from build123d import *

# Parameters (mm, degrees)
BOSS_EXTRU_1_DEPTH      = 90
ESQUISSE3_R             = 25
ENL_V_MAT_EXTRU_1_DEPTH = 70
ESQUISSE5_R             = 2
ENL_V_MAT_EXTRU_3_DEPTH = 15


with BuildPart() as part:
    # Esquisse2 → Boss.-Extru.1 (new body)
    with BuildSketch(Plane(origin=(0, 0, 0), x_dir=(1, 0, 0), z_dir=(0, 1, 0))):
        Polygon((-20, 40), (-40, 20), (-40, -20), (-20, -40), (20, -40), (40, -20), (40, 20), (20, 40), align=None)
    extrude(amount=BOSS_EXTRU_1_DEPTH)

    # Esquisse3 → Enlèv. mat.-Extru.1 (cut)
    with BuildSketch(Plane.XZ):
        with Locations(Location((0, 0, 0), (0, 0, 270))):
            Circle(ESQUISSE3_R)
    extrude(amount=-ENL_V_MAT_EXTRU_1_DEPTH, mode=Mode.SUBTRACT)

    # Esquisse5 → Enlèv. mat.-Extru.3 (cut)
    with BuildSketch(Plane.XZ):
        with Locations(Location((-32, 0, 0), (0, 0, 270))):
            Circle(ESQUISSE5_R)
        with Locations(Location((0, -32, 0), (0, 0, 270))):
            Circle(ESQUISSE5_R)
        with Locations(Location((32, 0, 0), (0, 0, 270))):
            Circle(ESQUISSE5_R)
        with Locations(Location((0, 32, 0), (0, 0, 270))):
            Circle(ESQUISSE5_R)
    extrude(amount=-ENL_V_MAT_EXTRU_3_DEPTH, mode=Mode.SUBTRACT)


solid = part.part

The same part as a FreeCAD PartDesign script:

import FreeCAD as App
import Part
import Sketcher

doc = App.newDocument("Part")
body = doc.addObject("PartDesign::Body", "Body")

# Sketch on XZ plane
sketch1 = doc.addObject("Sketcher::SketchObject", "Sketch")
body.addObject(sketch1)
sketch1.AttachmentSupport = (doc.XZ_Plane, [""])
sketch1.MapMode = "FlatFace"
sketch1.addGeometry(Part.LineSegment(App.Vector(-20, -40, 0), App.Vector(-40, -20, 0)), False)
sketch1.addGeometry(Part.LineSegment(App.Vector(-40, -20, 0), App.Vector(-40, 20, 0)), False)
sketch1.addGeometry(Part.LineSegment(App.Vector(-40, 20, 0), App.Vector(-20, 40, 0)), False)
sketch1.addGeometry(Part.LineSegment(App.Vector(-20, 40, 0), App.Vector(20, 40, 0)), False)
sketch1.addGeometry(Part.LineSegment(App.Vector(20, 40, 0), App.Vector(40, 20, 0)), False)
sketch1.addGeometry(Part.LineSegment(App.Vector(40, 20, 0), App.Vector(40, -20, 0)), False)
sketch1.addGeometry(Part.LineSegment(App.Vector(40, -20, 0), App.Vector(20, -40, 0)), False)
sketch1.addGeometry(Part.LineSegment(App.Vector(20, -40, 0), App.Vector(-20, -40, 0)), False)
sketch1.addConstraint(Sketcher.Constraint("Coincident", 0, 2, 1, 1))
sketch1.addConstraint(Sketcher.Constraint("Coincident", 1, 2, 2, 1))
sketch1.addConstraint(Sketcher.Constraint("Coincident", 2, 2, 3, 1))
sketch1.addConstraint(Sketcher.Constraint("Coincident", 3, 2, 4, 1))
sketch1.addConstraint(Sketcher.Constraint("Coincident", 4, 2, 5, 1))
sketch1.addConstraint(Sketcher.Constraint("Coincident", 5, 2, 6, 1))
sketch1.addConstraint(Sketcher.Constraint("Coincident", 6, 2, 7, 1))
sketch1.addConstraint(Sketcher.Constraint("Coincident", 7, 2, 0, 1))
sketch1.addConstraint(Sketcher.Constraint("Vertical", 1))
sketch1.addConstraint(Sketcher.Constraint("Horizontal", 3))
sketch1.addConstraint(Sketcher.Constraint("Vertical", 5))
sketch1.addConstraint(Sketcher.Constraint("Horizontal", 7))
sketch1.addConstraint(Sketcher.Constraint("Symmetric", 0, 2, 4, 2, -1, 1))
sketch1.addConstraint(Sketcher.Constraint("Symmetric", 2, 2, 6, 2, -1, 1))
sketch1.addConstraint(Sketcher.Constraint("Perpendicular", 0, 2))
sketch1.addConstraint(Sketcher.Constraint("Perpendicular", 2, 4))
sketch1.addConstraint(Sketcher.Constraint("Perpendicular", 4, 6))
sketch1.addConstraint(Sketcher.Constraint("Horizontal", 1, 2, 4, 2))
sketch1.addConstraint(Sketcher.Constraint("Vertical", 3, 2, 6, 2))
sketch1.addConstraint(Sketcher.Constraint("Equal", 7, 1))
sketch1.addConstraint(Sketcher.Constraint("DistanceX", 3, 1, 3, 2, 40.0))
sketch1.addConstraint(Sketcher.Constraint("DistanceX", 0, 2, -1, 1, 40.0))
pad1 = doc.addObject("PartDesign::Pad", "Pad")
body.addObject(pad1)
pad1.Profile = sketch1
pad1.Length = 90
pad1.Reversed = True

# Sketch on XZ plane
sketch2 = doc.addObject("Sketcher::SketchObject", "Sketch001")
body.addObject(sketch2)
sketch2.AttachmentSupport = (doc.XZ_Plane, [""])
sketch2.MapMode = "FlatFace"
sketch2.addGeometry(Part.Circle(App.Vector(0, 0, 0), App.Vector(0, 0, 1), 25), False)
sketch2.addConstraint(Sketcher.Constraint("Coincident", 0, 3, -1, 1))
sketch2.addConstraint(Sketcher.Constraint("Diameter", 0, 50.0))
pocket1 = doc.addObject("PartDesign::Pocket", "Pocket")
body.addObject(pocket1)
pocket1.Profile = sketch2
pocket1.Length = 70

# Sketch on XZ plane
sketch3 = doc.addObject("Sketcher::SketchObject", "Sketch002")
body.addObject(sketch3)
sketch3.AttachmentSupport = (doc.XZ_Plane, [""])
sketch3.MapMode = "FlatFace"
sketch3.addGeometry(Part.Circle(App.Vector(-32, 0, 0), App.Vector(0, 0, 1), 2), False)
sketch3.addGeometry(Part.Circle(App.Vector(0, -32, 0), App.Vector(0, 0, 1), 2), False)
sketch3.addGeometry(Part.Circle(App.Vector(32, 0, 0), App.Vector(0, 0, 1), 2), False)
sketch3.addGeometry(Part.Circle(App.Vector(0, 32, 0), App.Vector(0, 0, 1), 2), False)
sketch3.addConstraint(Sketcher.Constraint("Equal", 0, 1))
sketch3.addConstraint(Sketcher.Constraint("Equal", 1, 2))
sketch3.addConstraint(Sketcher.Constraint("Equal", 2, 3))
sketch3.addConstraint(Sketcher.Constraint("Symmetric", 0, 3, 2, 3, -1, 1))
sketch3.addConstraint(Sketcher.Constraint("Symmetric", 1, 3, 3, 3, -1, 1))
sketch3.addConstraint(Sketcher.Constraint("PointOnObject", 0, 3, -1))
sketch3.addConstraint(Sketcher.Constraint("PointOnObject", 1, 3, -2))
sketch3.addConstraint(Sketcher.Constraint("Diameter", 0, 4.0))
sketch3.addConstraint(Sketcher.Constraint("DistanceX", 0, 3, -1, 1, 32.0))
sketch3.addConstraint(Sketcher.Constraint("DistanceY", 1, 3, -1, 1, 32.0))
pocket2 = doc.addObject("PartDesign::Pocket", "Pocket001")
body.addObject(pocket2)
pocket2.Profile = sketch3
pocket2.Length = 15

doc.recompute()
